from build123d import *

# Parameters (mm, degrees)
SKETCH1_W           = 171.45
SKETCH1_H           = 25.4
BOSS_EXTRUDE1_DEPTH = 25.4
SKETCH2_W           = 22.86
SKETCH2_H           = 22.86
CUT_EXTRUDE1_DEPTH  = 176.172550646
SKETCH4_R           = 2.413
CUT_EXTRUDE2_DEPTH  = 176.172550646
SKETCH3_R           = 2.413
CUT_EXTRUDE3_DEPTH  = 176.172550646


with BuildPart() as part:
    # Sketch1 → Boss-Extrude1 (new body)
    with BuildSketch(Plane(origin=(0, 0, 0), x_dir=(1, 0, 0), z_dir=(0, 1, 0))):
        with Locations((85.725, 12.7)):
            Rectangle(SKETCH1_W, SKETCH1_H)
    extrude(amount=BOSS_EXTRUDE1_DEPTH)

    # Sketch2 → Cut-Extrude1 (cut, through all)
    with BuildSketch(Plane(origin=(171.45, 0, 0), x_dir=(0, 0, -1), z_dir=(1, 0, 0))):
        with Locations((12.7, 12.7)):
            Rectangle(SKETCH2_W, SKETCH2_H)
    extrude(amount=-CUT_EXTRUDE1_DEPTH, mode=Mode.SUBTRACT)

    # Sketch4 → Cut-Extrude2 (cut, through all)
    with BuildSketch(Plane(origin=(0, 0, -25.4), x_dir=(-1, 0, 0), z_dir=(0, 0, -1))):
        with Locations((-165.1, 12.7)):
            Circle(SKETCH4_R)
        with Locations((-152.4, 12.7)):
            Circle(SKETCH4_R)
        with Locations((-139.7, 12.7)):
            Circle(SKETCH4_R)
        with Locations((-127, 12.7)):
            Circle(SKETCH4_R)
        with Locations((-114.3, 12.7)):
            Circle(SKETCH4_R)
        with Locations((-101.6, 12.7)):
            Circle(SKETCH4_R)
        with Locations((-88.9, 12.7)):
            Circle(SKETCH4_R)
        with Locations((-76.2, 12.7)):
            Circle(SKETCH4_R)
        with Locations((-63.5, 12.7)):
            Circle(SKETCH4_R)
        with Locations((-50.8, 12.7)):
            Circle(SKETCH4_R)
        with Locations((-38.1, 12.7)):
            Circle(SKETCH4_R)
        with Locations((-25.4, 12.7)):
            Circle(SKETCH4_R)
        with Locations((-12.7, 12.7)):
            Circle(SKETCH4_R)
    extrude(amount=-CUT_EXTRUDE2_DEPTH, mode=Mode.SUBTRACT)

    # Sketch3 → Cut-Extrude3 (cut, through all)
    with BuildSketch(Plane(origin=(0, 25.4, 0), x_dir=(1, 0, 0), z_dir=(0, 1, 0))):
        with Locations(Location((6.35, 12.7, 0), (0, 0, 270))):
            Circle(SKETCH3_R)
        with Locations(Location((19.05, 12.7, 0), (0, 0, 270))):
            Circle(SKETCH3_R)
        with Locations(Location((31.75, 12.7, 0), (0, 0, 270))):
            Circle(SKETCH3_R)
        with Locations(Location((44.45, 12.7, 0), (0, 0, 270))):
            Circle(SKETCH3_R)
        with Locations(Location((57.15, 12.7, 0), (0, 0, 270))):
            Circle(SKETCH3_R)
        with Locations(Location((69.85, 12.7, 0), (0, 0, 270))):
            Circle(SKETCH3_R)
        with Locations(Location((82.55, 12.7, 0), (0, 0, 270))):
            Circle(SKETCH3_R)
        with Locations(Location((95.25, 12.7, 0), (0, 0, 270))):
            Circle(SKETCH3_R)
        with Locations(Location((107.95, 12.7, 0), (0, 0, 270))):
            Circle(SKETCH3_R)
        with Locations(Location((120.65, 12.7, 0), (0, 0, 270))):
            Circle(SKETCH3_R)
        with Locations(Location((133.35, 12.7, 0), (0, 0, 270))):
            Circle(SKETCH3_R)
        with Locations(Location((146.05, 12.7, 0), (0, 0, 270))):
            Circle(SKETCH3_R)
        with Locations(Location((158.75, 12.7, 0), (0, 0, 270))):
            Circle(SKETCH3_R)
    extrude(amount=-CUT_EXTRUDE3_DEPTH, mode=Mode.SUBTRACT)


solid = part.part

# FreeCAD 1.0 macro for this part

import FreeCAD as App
import Part
import Sketcher

V = App.Vector
Q = App.Units.Quantity


def add_polygon(sketch, points):
    """Adds a closed chain of lines whose ends are joined by coincident constraints."""
    first, n = sketch.GeometryCount, len(points)
    for a, b in zip(points, points[1:] + points[:1]):
        sketch.addGeometry(Part.LineSegment(App.Vector(*a, 0), App.Vector(*b, 0)), False)
    for i in range(n):
        sketch.addConstraint(Sketcher.Constraint("Coincident", first + i, 2, first + (i + 1) % n, 1))

doc = App.newDocument("Part")
body = doc.addObject("PartDesign::Body", "Body")

# Sketch on XZ plane
sketch1 = body.newObject("Sketcher::SketchObject", "Sketch")
sketch1.AttachmentSupport = (doc.getObject("XZ_Plane"), [""])
sketch1.MapMode = "FlatFace"
add_polygon(sketch1, [(0, -25), (0, 0), (171, 0), (171, -25)])  # lines 0-3
sketch1.addConstraint([
    Sketcher.Constraint("Vertical", 0),
    Sketcher.Constraint("Horizontal", 1),
    Sketcher.Constraint("Vertical", 2),
    Sketcher.Constraint("Horizontal", 3),
    Sketcher.Constraint("Coincident", 0, 2, -1, 1),
    Sketcher.Constraint("DistanceY", 0, 1, 0, 2, Q("1 in")),
    Sketcher.Constraint("DistanceX", 1, 1, 1, 2, Q("6.75 in")),
])
pad1 = body.newObject("PartDesign::Pad", "Pad")
pad1.Profile = sketch1
pad1.Length = Q("1 in")
pad1.Reversed = True

# Sketch on YZ plane
sketch2 = body.newObject("Sketcher::SketchObject", "Sketch001")
sketch2.AttachmentSupport = (doc.getObject("YZ_Plane"), [""])
sketch2.MapMode = "FlatFace"
sketch2.AttachmentOffset = App.Placement(V(0, 0, 6.75 * 25.4), App.Rotation())
add_polygon(sketch2, [(24, -1), (1, -1), (1, -24), (24, -24)])  # lines 0-3
sketch2.addConstraint([
    Sketcher.Constraint("Horizontal", 0),
    Sketcher.Constraint("Vertical", 1),
    Sketcher.Constraint("Horizontal", 2),
    Sketcher.Constraint("Vertical", 3),
    Sketcher.Constraint("Equal", 2, 1),
    Sketcher.Constraint("DistanceX", 0, 2, 0, 1, Q("0.9 in")),
    Sketcher.Constraint("DistanceX", -1, 1, 0, 2, Q("0.05 in")),
    Sketcher.Constraint("DistanceY", 0, 2, -1, 1, Q("0.05 in")),
])
pocket1 = body.newObject("PartDesign::Pocket", "Pocket")
pocket1.Profile = sketch2
pocket1.Type = "ThroughAll"

# Sketch on XY plane
sketch3 = body.newObject("Sketcher::SketchObject", "Sketch002")
sketch3.AttachmentSupport = (doc.getObject("XY_Plane"), [""])
sketch3.MapMode = "FlatFace"
sketch3.AttachmentOffset = App.Placement(V(0, 0, -1 * 25.4), App.Rotation())
sketch3.addGeometry([
    Part.Circle(V(165.1, 12.7, 0), V(0, 0, 1), 2.4),  # 0
    Part.Circle(V(152.4, 12.7, 0), V(0, 0, 1), 2.4),  # 1
    Part.Circle(V(139.7, 12.7, 0), V(0, 0, 1), 2.4),  # 2
    Part.Circle(V(127, 12.7, 0), V(0, 0, 1), 2.4),  # 3
    Part.Circle(V(114.3, 12.7, 0), V(0, 0, 1), 2.4),  # 4
    Part.Circle(V(101.6, 12.7, 0), V(0, 0, 1), 2.4),  # 5
    Part.Circle(V(88.9, 12.7, 0), V(0, 0, 1), 2.4),  # 6
    Part.Circle(V(76.2, 12.7, 0), V(0, 0, 1), 2.4),  # 7
    Part.Circle(V(63.5, 12.7, 0), V(0, 0, 1), 2.4),  # 8
    Part.Circle(V(50.8, 12.7, 0), V(0, 0, 1), 2.4),  # 9
    Part.Circle(V(38.1, 12.7, 0), V(0, 0, 1), 2.4),  # 10
    Part.Circle(V(25.4, 12.7, 0), V(0, 0, 1), 2.4),  # 11
    Part.Circle(V(12.7, 12.7, 0), V(0, 0, 1), 2.4),  # 12
], False)
sketch3.addConstraint([
    Sketcher.Constraint("Equal", 0, 1),
    Sketcher.Constraint("Equal", 1, 2),
    Sketcher.Constraint("Equal", 2, 3),
    Sketcher.Constraint("Equal", 3, 4),
    Sketcher.Constraint("Equal", 4, 5),
    Sketcher.Constraint("Equal", 5, 6),
    Sketcher.Constraint("Equal", 6, 7),
    Sketcher.Constraint("Equal", 7, 8),
    Sketcher.Constraint("Equal", 8, 9),
    Sketcher.Constraint("Equal", 9, 10),
    Sketcher.Constraint("Equal", 10, 11),
    Sketcher.Constraint("Equal", 11, 12),
    Sketcher.Constraint("Horizontal", 0, 3, 1, 3),
    Sketcher.Constraint("Horizontal", 1, 3, 2, 3),
    Sketcher.Constraint("Horizontal", 2, 3, 3, 3),
    Sketcher.Constraint("Horizontal", 3, 3, 4, 3),
    Sketcher.Constraint("Horizontal", 4, 3, 5, 3),
    Sketcher.Constraint("Horizontal", 5, 3, 6, 3),
    Sketcher.Constraint("Horizontal", 6, 3, 7, 3),
    Sketcher.Constraint("Horizontal", 7, 3, 8, 3),
    Sketcher.Constraint("Horizontal", 8, 3, 9, 3),
    Sketcher.Constraint("Horizontal", 9, 3, 10, 3),
    Sketcher.Constraint("Horizontal", 10, 3, 11, 3),
    Sketcher.Constraint("Horizontal", 11, 3, 12, 3),
    Sketcher.Constraint("Diameter", 0, Q("0.19 in")),
    Sketcher.Constraint("DistanceX", -1, 1, 1, 3, Q("6 in")),
    Sketcher.Constraint("DistanceX", -1, 1, 3, 3, Q("5 in")),
    Sketcher.Constraint("DistanceX", -1, 1, 5, 3, Q("4 in")),
    Sketcher.Constraint("DistanceX", -1, 1, 7, 3, Q("3 in")),
    Sketcher.Constraint("DistanceX", -1, 1, 9, 3, Q("2 in")),
    Sketcher.Constraint("DistanceX", -1, 1, 11, 3, Q("1 in")),
    Sketcher.Constraint("DistanceX", 2, 3, 0, 3, Q("1 in")),
    Sketcher.Constraint("DistanceX", 4, 3, 2, 3, Q("1 in")),
    Sketcher.Constraint("DistanceX", 6, 3, 4, 3, Q("1 in")),
    Sketcher.Constraint("DistanceX", 8, 3, 6, 3, Q("1 in")),
    Sketcher.Constraint("DistanceX", 10, 3, 8, 3, Q("1 in")),
    Sketcher.Constraint("DistanceX", 12, 3, 10, 3, Q("1 in")),
    Sketcher.Constraint("DistanceX", -1, 1, 0, 3, Q("6.5 in")),
    Sketcher.Constraint("DistanceY", -1, 1, 0, 3, Q("0.5 in")),
])
pocket2 = body.newObject("PartDesign::Pocket", "Pocket001")
pocket2.Profile = sketch3
pocket2.Type = "ThroughAll"
pocket2.Reversed = True

# Sketch on XZ plane
sketch4 = body.newObject("Sketcher::SketchObject", "Sketch003")
sketch4.AttachmentSupport = (doc.getObject("XZ_Plane"), [""])
sketch4.MapMode = "FlatFace"
sketch4.AttachmentOffset = App.Placement(V(0, 0, -1 * 25.4), App.Rotation())
sketch4.addGeometry([
    Part.Circle(V(6.3, -12.7, 0), V(0, 0, 1), 2.4),  # 0
    Part.Circle(V(19.1, -12.7, 0), V(0, 0, 1), 2.4),  # 1
    Part.Circle(V(31.8, -12.7, 0), V(0, 0, 1), 2.4),  # 2
    Part.Circle(V(44.5, -12.7, 0), V(0, 0, 1), 2.4),  # 3
    Part.Circle(V(57.1, -12.7, 0), V(0, 0, 1), 2.4),  # 4
    Part.Circle(V(69.8, -12.7, 0), V(0, 0, 1), 2.4),  # 5
    Part.Circle(V(82.5, -12.7, 0), V(0, 0, 1), 2.4),  # 6
    Part.Circle(V(95.2, -12.7, 0), V(0, 0, 1), 2.4),  # 7
    Part.Circle(V(108, -12.7, 0), V(0, 0, 1), 2.4),  # 8
    Part.Circle(V(120.7, -12.7, 0), V(0, 0, 1), 2.4),  # 9
    Part.Circle(V(133.3, -12.7, 0), V(0, 0, 1), 2.4),  # 10
    Part.Circle(V(146.1, -12.7, 0), V(0, 0, 1), 2.4),  # 11
    Part.Circle(V(158.8, -12.7, 0), V(0, 0, 1), 2.4),  # 12
], False)
sketch4.addConstraint([
    Sketcher.Constraint("Equal", 0, 1),
    Sketcher.Constraint("Equal", 1, 2),
    Sketcher.Constraint("Equal", 2, 3),
    Sketcher.Constraint("Equal", 3, 4),
    Sketcher.Constraint("Equal", 4, 5),
    Sketcher.Constraint("Equal", 5, 6),
    Sketcher.Constraint("Equal", 6, 7),
    Sketcher.Constraint("Equal", 7, 8),
    Sketcher.Constraint("Equal", 8, 9),
    Sketcher.Constraint("Equal", 9, 10),
    Sketcher.Constraint("Equal", 10, 11),
    Sketcher.Constraint("Equal", 11, 12),
    Sketcher.Constraint("Horizontal", 0, 3, 1, 3),
    Sketcher.Constraint("Horizontal", 1, 3, 2, 3),
    Sketcher.Constraint("Horizontal", 2, 3, 3, 3),
    Sketcher.Constraint("Horizontal", 3, 3, 4, 3),
    Sketcher.Constraint("Horizontal", 4, 3, 5, 3),
    Sketcher.Constraint("Horizontal", 5, 3, 6, 3),
    Sketcher.Constraint("Horizontal", 6, 3, 7, 3),
    Sketcher.Constraint("Horizontal", 7, 3, 8, 3),
    Sketcher.Constraint("Horizontal", 8, 3, 9, 3),
    Sketcher.Constraint("Horizontal", 9, 3, 10, 3),
    Sketcher.Constraint("Horizontal", 10, 3, 11, 3),
    Sketcher.Constraint("Horizontal", 11, 3, 12, 3),
    Sketcher.Constraint("Diameter", 0, Q("0.19 in")),
    Sketcher.Constraint("DistanceX", 0, 3, 2, 3, Q("1 in")),
    Sketcher.Constraint("DistanceX", 1, 3, 3, 3, Q("1 in")),
    Sketcher.Constraint("DistanceX", 2, 3, 4, 3, Q("1 in")),
    Sketcher.Constraint("DistanceX", 3, 3, 5, 3, Q("1 in")),
    Sketcher.Constraint("DistanceX", 4, 3, 6, 3, Q("1 in")),
    Sketcher.Constraint("DistanceX", 5, 3, 7, 3, Q("1 in")),
    Sketcher.Constraint("DistanceX", 6, 3, 8, 3, Q("1 in")),
    Sketcher.Constraint("DistanceX", 7, 3, 9, 3, Q("1 in")),
    Sketcher.Constraint("DistanceX", 8, 3, 10, 3, Q("1 in")),
    Sketcher.Constraint("DistanceX", 9, 3, 11, 3, Q("1 in")),
    Sketcher.Constraint("DistanceX", 10, 3, 12, 3, Q("1 in")),
    Sketcher.Constraint("DistanceY", 0, 3, -1, 1, Q("0.5 in")),
    Sketcher.Constraint("DistanceX", 0, 3, 1, 3, Q("0.5 in")),
    Sketcher.Constraint("DistanceX", -1, 1, 0, 3, Q("0.25 in")),
])
pocket3 = body.newObject("PartDesign::Pocket", "Pocket002")
pocket3.Profile = sketch4
pocket3.Type = "ThroughAll"
pocket3.Reversed = True

doc.recompute()
